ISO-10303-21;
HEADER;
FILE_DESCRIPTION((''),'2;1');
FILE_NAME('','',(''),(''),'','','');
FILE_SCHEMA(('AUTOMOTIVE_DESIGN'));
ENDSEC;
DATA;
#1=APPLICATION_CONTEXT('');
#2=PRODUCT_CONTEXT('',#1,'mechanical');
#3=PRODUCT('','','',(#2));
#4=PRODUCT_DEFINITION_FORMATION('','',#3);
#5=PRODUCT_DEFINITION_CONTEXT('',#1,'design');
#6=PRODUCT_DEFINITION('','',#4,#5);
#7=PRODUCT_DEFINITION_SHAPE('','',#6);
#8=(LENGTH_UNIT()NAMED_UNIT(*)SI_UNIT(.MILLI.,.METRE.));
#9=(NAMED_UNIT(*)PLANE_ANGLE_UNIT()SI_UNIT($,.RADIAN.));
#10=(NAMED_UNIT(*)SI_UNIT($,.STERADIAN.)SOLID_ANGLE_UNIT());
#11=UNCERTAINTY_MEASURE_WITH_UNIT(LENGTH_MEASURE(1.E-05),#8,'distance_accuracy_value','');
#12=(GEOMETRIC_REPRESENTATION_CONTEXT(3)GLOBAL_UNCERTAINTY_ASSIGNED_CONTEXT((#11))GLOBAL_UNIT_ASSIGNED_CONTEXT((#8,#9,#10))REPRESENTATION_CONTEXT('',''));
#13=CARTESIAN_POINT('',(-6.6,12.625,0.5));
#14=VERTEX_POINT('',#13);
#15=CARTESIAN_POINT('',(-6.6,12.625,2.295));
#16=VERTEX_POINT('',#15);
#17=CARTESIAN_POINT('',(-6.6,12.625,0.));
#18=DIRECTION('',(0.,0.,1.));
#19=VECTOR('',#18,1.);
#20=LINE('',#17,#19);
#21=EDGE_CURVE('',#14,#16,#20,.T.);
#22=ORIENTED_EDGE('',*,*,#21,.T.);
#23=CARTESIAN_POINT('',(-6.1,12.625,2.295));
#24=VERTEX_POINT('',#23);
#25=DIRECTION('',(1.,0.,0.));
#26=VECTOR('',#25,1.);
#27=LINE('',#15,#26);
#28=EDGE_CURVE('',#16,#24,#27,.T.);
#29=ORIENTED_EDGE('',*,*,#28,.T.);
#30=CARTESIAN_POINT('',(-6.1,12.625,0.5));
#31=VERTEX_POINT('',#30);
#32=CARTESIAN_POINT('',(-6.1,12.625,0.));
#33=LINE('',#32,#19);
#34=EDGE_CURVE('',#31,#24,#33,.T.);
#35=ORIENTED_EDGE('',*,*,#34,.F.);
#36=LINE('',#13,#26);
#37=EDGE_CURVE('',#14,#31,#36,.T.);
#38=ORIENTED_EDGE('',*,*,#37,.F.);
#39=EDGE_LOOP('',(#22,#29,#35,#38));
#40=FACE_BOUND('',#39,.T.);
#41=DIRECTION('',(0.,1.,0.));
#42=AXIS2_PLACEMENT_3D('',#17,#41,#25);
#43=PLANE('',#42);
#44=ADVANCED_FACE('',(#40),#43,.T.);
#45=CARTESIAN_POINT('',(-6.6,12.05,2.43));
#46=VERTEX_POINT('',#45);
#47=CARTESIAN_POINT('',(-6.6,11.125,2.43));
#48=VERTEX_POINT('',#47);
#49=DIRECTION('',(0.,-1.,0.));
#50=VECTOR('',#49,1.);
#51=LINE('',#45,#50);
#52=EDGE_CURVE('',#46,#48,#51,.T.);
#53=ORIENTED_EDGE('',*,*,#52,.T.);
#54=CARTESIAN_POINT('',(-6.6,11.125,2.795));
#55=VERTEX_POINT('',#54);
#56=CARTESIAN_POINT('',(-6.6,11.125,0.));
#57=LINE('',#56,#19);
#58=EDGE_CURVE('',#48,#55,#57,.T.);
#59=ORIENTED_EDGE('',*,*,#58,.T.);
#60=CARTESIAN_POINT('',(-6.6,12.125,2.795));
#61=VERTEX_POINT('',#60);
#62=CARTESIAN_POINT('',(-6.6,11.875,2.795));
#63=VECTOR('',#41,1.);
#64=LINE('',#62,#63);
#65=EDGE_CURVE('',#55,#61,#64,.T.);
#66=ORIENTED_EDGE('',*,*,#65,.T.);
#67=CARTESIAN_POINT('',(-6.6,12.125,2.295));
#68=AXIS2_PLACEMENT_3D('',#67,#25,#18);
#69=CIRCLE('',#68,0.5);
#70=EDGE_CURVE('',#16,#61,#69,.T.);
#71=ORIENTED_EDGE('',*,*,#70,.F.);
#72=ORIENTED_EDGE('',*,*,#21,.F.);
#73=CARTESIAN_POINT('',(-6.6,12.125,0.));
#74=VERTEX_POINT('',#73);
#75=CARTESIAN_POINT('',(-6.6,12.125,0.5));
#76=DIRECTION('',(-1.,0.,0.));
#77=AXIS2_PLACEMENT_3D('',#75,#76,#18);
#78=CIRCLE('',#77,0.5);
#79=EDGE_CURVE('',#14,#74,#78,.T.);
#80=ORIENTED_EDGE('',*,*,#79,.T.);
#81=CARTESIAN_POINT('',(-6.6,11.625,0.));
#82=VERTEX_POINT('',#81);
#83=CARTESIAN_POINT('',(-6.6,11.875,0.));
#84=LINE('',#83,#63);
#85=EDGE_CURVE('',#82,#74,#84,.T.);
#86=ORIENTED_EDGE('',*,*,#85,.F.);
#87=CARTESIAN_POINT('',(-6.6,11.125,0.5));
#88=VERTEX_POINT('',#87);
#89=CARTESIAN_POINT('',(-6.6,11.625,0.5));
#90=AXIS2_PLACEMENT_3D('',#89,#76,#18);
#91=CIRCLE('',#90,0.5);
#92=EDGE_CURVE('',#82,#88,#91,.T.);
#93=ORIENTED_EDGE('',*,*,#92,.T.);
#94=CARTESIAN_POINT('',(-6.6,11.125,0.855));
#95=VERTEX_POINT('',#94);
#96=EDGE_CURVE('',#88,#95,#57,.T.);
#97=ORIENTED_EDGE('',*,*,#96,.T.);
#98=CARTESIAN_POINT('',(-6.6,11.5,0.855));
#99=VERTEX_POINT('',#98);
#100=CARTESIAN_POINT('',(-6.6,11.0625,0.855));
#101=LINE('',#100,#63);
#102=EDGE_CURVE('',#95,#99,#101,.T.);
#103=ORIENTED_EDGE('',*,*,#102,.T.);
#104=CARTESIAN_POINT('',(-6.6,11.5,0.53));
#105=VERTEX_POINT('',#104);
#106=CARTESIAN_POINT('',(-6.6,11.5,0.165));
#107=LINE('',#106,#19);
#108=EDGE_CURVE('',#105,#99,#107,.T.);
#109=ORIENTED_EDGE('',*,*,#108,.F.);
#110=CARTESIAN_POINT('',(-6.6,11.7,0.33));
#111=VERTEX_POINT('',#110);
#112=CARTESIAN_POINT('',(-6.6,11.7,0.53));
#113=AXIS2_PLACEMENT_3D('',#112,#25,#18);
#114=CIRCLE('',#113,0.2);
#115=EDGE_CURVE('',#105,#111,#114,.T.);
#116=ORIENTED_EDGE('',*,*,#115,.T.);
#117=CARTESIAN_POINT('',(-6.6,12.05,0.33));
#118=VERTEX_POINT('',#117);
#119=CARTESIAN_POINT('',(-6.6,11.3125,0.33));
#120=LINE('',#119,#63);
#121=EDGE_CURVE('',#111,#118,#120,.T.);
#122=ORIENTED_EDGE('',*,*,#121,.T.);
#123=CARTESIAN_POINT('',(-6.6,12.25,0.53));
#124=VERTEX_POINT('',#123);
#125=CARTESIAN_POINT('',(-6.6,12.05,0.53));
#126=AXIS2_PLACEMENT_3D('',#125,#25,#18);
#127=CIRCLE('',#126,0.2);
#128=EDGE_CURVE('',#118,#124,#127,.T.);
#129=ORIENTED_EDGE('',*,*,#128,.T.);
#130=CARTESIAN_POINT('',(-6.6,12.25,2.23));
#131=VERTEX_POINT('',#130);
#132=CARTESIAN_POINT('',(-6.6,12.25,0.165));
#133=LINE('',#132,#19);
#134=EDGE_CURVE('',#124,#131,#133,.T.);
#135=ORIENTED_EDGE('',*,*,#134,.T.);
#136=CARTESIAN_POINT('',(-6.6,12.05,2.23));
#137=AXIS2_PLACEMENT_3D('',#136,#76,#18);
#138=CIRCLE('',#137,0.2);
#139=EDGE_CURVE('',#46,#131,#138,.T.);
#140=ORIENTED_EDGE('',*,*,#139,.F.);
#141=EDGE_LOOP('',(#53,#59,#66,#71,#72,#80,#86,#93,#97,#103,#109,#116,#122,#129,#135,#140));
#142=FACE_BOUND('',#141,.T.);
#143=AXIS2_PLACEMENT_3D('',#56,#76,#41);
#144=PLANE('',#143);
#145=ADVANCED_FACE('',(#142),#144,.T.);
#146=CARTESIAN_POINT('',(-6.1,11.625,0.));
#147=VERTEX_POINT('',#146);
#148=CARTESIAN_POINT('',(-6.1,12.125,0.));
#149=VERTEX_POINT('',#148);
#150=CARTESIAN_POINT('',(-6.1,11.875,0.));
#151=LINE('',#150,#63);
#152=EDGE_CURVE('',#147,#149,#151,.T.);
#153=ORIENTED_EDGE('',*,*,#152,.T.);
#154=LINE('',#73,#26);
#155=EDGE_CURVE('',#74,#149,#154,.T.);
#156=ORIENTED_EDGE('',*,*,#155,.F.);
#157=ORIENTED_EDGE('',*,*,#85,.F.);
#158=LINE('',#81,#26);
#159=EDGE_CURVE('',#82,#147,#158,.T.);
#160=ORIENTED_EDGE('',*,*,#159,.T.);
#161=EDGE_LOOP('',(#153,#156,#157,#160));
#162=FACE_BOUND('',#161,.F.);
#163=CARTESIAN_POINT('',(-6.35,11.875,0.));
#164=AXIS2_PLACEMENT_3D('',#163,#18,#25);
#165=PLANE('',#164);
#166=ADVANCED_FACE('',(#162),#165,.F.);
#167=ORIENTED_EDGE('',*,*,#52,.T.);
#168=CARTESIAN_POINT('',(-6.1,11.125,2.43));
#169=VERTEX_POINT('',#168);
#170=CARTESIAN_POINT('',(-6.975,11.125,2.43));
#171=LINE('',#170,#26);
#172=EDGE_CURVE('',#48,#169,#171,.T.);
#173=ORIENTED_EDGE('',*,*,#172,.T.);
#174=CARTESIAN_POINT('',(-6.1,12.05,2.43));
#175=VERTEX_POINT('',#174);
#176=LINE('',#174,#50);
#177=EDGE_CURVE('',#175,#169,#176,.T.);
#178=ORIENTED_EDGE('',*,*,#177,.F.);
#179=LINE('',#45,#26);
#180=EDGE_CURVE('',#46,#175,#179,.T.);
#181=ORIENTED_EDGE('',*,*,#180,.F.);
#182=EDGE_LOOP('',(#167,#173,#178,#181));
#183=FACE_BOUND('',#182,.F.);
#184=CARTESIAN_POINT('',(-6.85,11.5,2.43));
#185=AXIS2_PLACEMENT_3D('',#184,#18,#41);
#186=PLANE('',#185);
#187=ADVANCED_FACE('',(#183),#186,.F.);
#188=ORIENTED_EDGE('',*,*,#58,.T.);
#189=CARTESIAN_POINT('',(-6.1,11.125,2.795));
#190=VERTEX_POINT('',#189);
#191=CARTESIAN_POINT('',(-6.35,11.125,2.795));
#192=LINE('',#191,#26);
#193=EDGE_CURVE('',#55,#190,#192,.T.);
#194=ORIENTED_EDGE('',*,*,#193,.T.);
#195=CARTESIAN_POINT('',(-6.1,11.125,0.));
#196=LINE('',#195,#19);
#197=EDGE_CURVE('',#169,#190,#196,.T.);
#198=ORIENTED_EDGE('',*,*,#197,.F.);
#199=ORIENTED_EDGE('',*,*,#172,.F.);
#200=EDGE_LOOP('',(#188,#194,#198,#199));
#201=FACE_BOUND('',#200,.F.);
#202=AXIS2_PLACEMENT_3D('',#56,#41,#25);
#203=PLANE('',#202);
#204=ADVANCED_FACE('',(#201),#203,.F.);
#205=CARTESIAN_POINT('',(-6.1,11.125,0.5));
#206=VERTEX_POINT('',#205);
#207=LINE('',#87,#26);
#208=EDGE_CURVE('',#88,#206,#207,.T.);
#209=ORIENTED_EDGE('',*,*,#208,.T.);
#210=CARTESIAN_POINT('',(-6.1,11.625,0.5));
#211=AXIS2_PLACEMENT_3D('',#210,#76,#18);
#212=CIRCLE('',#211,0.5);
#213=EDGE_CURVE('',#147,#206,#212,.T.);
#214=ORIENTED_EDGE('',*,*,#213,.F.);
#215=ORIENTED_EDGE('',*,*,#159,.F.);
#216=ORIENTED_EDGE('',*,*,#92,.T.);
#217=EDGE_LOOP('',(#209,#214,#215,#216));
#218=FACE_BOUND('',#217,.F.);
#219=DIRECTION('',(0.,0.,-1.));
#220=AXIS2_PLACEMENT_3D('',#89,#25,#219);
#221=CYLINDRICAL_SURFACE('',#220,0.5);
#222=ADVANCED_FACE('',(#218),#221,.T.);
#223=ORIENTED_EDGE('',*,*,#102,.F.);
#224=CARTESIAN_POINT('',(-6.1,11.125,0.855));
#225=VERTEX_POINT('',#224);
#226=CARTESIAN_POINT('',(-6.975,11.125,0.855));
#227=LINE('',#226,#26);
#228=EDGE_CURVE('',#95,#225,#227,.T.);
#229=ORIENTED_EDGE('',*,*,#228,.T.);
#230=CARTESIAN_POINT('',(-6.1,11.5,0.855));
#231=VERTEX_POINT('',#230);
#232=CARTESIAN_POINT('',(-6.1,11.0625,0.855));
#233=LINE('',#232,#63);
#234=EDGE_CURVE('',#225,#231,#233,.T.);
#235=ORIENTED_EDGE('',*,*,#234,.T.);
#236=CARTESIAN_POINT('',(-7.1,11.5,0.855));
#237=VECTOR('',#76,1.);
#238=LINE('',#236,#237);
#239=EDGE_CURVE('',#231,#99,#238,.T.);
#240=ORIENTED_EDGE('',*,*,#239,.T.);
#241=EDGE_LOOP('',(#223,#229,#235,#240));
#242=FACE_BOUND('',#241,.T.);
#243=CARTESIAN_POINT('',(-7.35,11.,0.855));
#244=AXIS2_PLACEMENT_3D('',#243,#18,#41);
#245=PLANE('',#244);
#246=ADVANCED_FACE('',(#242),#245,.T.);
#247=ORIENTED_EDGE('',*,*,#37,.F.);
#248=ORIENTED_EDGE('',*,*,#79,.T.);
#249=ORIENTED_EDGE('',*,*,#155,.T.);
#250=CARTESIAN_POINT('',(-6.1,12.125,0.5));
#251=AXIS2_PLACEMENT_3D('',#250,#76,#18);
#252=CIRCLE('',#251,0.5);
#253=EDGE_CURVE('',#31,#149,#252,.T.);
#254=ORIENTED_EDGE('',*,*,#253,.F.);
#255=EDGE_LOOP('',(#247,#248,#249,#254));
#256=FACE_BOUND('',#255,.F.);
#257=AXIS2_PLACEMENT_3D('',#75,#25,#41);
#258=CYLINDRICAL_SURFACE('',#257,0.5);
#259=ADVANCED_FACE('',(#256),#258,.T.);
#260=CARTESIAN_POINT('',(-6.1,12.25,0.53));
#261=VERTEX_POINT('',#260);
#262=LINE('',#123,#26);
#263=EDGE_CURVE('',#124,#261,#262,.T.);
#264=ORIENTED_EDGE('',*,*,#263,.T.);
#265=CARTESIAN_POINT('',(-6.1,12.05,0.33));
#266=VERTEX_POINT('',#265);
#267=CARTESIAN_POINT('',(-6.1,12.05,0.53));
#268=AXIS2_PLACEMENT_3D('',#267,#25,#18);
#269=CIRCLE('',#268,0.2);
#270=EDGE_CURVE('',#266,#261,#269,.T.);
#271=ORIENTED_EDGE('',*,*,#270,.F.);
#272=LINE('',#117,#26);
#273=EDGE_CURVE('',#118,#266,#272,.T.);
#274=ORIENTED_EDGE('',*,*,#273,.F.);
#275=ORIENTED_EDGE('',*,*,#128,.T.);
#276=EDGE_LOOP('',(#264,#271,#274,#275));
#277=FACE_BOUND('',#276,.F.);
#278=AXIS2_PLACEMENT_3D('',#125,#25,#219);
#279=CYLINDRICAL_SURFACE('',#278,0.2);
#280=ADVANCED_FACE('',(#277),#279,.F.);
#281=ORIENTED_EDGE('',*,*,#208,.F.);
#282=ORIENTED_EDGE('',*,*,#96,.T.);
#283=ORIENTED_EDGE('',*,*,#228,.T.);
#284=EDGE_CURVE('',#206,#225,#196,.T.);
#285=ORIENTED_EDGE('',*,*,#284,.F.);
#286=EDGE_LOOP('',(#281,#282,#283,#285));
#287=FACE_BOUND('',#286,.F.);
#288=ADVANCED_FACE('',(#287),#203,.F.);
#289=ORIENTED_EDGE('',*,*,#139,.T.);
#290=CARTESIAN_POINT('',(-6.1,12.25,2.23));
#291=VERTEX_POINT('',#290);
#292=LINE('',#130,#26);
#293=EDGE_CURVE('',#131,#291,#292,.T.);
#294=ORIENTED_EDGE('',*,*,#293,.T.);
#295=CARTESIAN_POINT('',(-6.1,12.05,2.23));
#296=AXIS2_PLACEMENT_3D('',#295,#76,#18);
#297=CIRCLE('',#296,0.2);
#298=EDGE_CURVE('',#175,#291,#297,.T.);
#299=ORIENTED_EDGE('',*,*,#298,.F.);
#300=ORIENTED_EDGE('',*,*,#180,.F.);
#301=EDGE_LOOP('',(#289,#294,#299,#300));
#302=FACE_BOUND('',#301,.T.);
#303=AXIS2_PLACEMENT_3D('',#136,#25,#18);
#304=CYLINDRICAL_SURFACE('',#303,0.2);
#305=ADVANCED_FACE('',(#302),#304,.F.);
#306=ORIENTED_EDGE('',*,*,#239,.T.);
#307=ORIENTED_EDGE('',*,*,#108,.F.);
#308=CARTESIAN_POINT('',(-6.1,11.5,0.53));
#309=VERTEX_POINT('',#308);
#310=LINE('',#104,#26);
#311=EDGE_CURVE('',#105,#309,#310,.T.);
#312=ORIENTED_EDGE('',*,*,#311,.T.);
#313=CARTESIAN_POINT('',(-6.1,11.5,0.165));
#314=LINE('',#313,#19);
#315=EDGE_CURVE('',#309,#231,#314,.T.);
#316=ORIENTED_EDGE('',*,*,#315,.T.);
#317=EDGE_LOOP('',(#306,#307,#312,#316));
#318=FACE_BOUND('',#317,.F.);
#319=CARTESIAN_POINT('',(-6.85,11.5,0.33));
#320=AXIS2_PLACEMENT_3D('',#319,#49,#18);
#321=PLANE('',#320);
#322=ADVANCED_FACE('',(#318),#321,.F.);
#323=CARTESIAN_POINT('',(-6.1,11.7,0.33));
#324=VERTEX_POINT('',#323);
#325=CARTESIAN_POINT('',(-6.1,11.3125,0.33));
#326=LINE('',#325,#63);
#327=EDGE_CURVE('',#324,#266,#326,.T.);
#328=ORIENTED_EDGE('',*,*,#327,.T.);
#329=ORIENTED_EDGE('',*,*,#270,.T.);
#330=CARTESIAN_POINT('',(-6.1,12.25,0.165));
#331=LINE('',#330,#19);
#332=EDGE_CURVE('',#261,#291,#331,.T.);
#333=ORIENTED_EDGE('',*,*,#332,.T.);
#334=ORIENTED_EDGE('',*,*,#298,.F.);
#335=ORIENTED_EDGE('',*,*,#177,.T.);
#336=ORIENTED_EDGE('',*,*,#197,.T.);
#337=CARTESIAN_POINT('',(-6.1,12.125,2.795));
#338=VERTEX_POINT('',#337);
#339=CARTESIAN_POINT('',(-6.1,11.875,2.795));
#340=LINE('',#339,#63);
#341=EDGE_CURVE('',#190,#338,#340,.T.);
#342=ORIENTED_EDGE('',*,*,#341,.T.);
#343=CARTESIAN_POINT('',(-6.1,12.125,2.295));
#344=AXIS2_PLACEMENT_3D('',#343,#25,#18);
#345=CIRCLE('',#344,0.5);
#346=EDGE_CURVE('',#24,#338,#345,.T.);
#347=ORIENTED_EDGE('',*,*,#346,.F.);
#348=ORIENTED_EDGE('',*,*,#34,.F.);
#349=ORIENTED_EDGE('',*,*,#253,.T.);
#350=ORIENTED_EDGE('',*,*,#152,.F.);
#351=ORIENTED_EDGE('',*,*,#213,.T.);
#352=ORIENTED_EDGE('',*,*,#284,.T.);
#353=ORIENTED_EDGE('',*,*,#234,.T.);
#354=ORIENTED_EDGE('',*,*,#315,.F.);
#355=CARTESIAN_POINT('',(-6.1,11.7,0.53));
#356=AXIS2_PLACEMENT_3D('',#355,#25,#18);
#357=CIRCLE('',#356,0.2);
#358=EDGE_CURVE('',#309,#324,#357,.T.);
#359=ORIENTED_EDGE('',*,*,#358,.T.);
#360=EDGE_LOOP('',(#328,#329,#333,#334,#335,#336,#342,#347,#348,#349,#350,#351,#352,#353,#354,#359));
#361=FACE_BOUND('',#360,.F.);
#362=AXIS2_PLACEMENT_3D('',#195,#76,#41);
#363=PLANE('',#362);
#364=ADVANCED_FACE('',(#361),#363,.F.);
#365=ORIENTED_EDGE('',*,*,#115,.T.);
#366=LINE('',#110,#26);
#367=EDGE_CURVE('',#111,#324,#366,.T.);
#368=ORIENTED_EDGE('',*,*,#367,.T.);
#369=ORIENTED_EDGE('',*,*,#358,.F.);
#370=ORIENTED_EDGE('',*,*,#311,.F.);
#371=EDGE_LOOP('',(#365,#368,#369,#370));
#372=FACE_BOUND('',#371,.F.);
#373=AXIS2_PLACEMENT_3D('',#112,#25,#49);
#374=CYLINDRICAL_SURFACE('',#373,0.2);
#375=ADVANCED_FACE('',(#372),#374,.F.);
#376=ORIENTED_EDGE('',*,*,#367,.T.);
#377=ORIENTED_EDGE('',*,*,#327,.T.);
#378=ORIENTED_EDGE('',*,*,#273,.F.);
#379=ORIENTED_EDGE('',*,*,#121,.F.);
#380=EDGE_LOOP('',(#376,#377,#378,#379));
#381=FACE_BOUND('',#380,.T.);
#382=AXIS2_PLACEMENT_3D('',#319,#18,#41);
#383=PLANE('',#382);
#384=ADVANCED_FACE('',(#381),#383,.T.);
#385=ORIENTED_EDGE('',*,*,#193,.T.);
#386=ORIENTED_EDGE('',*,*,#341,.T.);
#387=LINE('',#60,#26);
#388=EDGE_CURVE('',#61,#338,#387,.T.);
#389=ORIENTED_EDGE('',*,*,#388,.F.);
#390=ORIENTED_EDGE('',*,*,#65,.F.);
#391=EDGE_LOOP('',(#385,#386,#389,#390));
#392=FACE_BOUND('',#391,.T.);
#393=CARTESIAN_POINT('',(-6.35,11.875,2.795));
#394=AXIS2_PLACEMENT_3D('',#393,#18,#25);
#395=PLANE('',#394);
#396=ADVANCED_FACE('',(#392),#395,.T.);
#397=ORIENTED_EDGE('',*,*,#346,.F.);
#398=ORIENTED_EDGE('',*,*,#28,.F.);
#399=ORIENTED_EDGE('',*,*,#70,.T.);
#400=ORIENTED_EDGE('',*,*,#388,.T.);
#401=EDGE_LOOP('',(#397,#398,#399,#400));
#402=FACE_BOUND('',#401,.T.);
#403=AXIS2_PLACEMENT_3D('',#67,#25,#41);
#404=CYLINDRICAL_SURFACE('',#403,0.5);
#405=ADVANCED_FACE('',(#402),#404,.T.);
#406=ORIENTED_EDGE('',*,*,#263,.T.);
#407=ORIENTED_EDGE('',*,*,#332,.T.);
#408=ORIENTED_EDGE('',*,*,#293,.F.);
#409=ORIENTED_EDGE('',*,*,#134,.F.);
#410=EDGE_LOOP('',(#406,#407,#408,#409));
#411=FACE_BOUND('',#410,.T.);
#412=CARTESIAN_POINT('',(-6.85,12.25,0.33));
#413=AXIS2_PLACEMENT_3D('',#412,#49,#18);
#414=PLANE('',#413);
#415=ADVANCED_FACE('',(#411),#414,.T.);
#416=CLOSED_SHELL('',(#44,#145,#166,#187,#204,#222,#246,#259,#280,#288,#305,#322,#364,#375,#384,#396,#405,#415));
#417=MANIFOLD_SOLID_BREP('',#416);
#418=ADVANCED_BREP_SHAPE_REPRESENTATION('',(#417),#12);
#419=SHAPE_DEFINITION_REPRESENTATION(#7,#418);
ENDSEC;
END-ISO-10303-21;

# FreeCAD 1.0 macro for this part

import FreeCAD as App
import Part
import Sketcher


def edges_at(feature, points):
    """Names of the edges that pass closest to the given points."""
    edges = feature.Shape.Edges
    near = lambda p: min(range(len(edges)), key=lambda i: edges[i].distToShape(Part.Vertex(*p))[0])
    return sorted({f"Edge{near(p) + 1}" for p in points})

doc = App.newDocument("Part")
body = doc.addObject("PartDesign::Body", "Body")

# Sketch on XY plane
sketch1 = body.newObject("Sketcher::SketchObject", "Sketch")
sketch1.AttachmentSupport = (doc.getObject("XY_Plane"), [""])
sketch1.MapMode = "FlatFace"
sketch1.addGeometry(Part.LineSegment(App.Vector(-0.25, 12.625, 0), App.Vector(-0.25, 11.125, 0)), False)
sketch1.addGeometry(Part.LineSegment(App.Vector(-0.25, 11.125, 0), App.Vector(0.25, 11.125, 0)), False)
sketch1.addGeometry(Part.LineSegment(App.Vector(0.25, 11.125, 0), App.Vector(0.25, 12.625, 0)), False)
sketch1.addGeometry(Part.LineSegment(App.Vector(0.25, 12.625, 0), App.Vector(-0.25, 12.625, 0)), False)
sketch1.addConstraint(Sketcher.Constraint("Coincident", 0, 2, 1, 1))
sketch1.addConstraint(Sketcher.Constraint("Coincident", 1, 2, 2, 1))
sketch1.addConstraint(Sketcher.Constraint("Coincident", 2, 2, 3, 1))
sketch1.addConstraint(Sketcher.Constraint("Coincident", 3, 2, 0, 1))
sketch1.addConstraint(Sketcher.Constraint("Vertical", 0))
sketch1.addConstraint(Sketcher.Constraint("Horizontal", 1))
sketch1.addConstraint(Sketcher.Constraint("Vertical", 2))
sketch1.addConstraint(Sketcher.Constraint("Horizontal", 3))
sketch1.addConstraint(Sketcher.Constraint("DistanceX", 1, 1, 1, 2, 0.5))
sketch1.addConstraint(Sketcher.Constraint("DistanceY", 0, 2, 0, 1, 1.5))
sketch1.addConstraint(Sketcher.Constraint("DistanceX", 0, 2, -1, 1, 0.25))
sketch1.addConstraint(Sketcher.Constraint("DistanceY", -1, 1, 0, 2, 11.125))
pad1 = body.newObject("PartDesign::Pad", "Pad")
pad1.Profile = sketch1
pad1.Length = 2.795
doc.recompute()

fillet = body.newObject("PartDesign::Fillet", "Fillet")
fillet.Base = (pad1, edges_at(pad1, [(0, 12.625, 0)]))
fillet.Radius = 0.5
doc.recompute()

fillet2 = body.newObject("PartDesign::Fillet", "Fillet001")
fillet2.Base = (fillet, edges_at(fillet, [(0, 12.625, 2.795)]))
fillet2.Radius = 0.5
doc.recompute()

fillet3 = body.newObject("PartDesign::Fillet", "Fillet002")
fillet3.Base = (fillet2, edges_at(fillet2, [(0, 11.125, 0)]))
fillet3.Radius = 0.5

# Sketch on YZ plane
sketch2 = body.newObject("Sketcher::SketchObject", "Sketch001")
sketch2.AttachmentSupport = (doc.getObject("YZ_Plane"), [""])
sketch2.MapMode = "FlatFace"
sketch2.AttachmentOffset = App.Placement(App.Vector(0, 0, -0.5), App.Rotation())
sketch2.addGeometry(Part.LineSegment(App.Vector(11.5, 2.43, 0), App.Vector(11.5, 0.33, 0)), False)
sketch2.addGeometry(Part.LineSegment(App.Vector(11.5, 0.33, 0), App.Vector(12.25, 0.33, 0)), False)
sketch2.addGeometry(Part.LineSegment(App.Vector(12.25, 0.33, 0), App.Vector(12.25, 2.43, 0)), False)
sketch2.addGeometry(Part.LineSegment(App.Vector(12.25, 2.43, 0), App.Vector(11.5, 2.43, 0)), False)
sketch2.addConstraint(Sketcher.Constraint("Coincident", 0, 2, 1, 1))
sketch2.addConstraint(Sketcher.Constraint("Coincident", 1, 2, 2, 1))
sketch2.addConstraint(Sketcher.Constraint("Coincident", 2, 2, 3, 1))
sketch2.addConstraint(Sketcher.Constraint("Coincident", 3, 2, 0, 1))
sketch2.addConstraint(Sketcher.Constraint("Vertical", 0))
sketch2.addConstraint(Sketcher.Constraint("Horizontal", 1))
sketch2.addConstraint(Sketcher.Constraint("Vertical", 2))
sketch2.addConstraint(Sketcher.Constraint("Horizontal", 3))
sketch2.addConstraint(Sketcher.Constraint("DistanceY", 0, 2, 0, 1, 2.1))
sketch2.addConstraint(Sketcher.Constraint("DistanceX", 1, 1, 1, 2, 0.75))
sketch2.addConstraint(Sketcher.Constraint("DistanceX", -1, 1, 0, 2, 11.5))
sketch2.addConstraint(Sketcher.Constraint("DistanceY", -1, 1, 0, 2, 0.33))
pocket1 = body.newObject("PartDesign::Pocket", "Pocket")
pocket1.Profile = sketch2
pocket1.Length = 1
pocket1.Reversed = True
doc.recompute()

fillet4 = body.newObject("PartDesign::Fillet", "Fillet003")
fillet4.Base = (pocket1, edges_at(pocket1, [(0, 11.5, 0.33)]))
fillet4.Radius = 0.2
doc.recompute()

fillet5 = body.newObject("PartDesign::Fillet", "Fillet004")
fillet5.Base = (fillet4, edges_at(fillet4, [(0, 12.25, 0.33)]))
fillet5.Radius = 0.2
doc.recompute()

fillet6 = body.newObject("PartDesign::Fillet", "Fillet005")
fillet6.Base = (fillet5, edges_at(fillet5, [(0, 11.5, 2.43)]))
fillet6.Radius = 0.2
doc.recompute()

fillet7 = body.newObject("PartDesign::Fillet", "Fillet006")
fillet7.Base = (fillet6, edges_at(fillet6, [(0, 12.25, 2.43)]))
fillet7.Radius = 0.2

# Sketch on YZ plane
sketch3 = body.newObject("Sketcher::SketchObject", "Sketch002")
sketch3.AttachmentSupport = (doc.getObject("YZ_Plane"), [""])
sketch3.MapMode = "FlatFace"
sketch3.AttachmentOffset = App.Placement(App.Vector(0, 0, -1), App.Rotation())
sketch3.addGeometry(Part.LineSegment(App.Vector(11, 2.43, 0), App.Vector(11, 0.855, 0)), False)
sketch3.addGeometry(Part.LineSegment(App.Vector(11, 0.855, 0), App.Vector(12, 0.855, 0)), False)
sketch3.addGeometry(Part.LineSegment(App.Vector(12, 0.855, 0), App.Vector(12, 2.43, 0)), False)
sketch3.addGeometry(Part.LineSegment(App.Vector(12, 2.43, 0), App.Vector(11, 2.43, 0)), False)
sketch3.addConstraint(Sketcher.Constraint("Coincident", 0, 2, 1, 1))
sketch3.addConstraint(Sketcher.Constraint("Coincident", 1, 2, 2, 1))
sketch3.addConstraint(Sketcher.Constraint("Coincident", 2, 2, 3, 1))
sketch3.addConstraint(Sketcher.Constraint("Coincident", 3, 2, 0, 1))
sketch3.addConstraint(Sketcher.Constraint("Vertical", 0))
sketch3.addConstraint(Sketcher.Constraint("Horizontal", 1))
sketch3.addConstraint(Sketcher.Constraint("Vertical", 2))
sketch3.addConstraint(Sketcher.Constraint("Horizontal", 3))
sketch3.addConstraint(Sketcher.Constraint("DistanceX", 1, 1, 1, 2, 1.0))
sketch3.addConstraint(Sketcher.Constraint("DistanceX", -1, 1, 0, 2, 11.0))
sketch3.addConstraint(Sketcher.Constraint("DistanceY", 0, 2, 0, 1, 1.575))
sketch3.addConstraint(Sketcher.Constraint("DistanceY", -1, 1, 2, 2, 2.43))
pocket2 = body.newObject("PartDesign::Pocket", "Pocket001")
pocket2.Profile = sketch3
pocket2.Length = 3
pocket2.Reversed = True
body2 = doc.addObject("PartDesign::Body", "Body001")
doc.recompute()

body.Placement = App.Placement(App.Vector(-6.35, 0, 0), App.Rotation(App.Vector(0, 0, 1), 0))
boolean = body2.newObject("PartDesign::Boolean", "Boolean")
boolean.Type = "Fuse"
boolean.addObjects([body])

doc.recompute()
